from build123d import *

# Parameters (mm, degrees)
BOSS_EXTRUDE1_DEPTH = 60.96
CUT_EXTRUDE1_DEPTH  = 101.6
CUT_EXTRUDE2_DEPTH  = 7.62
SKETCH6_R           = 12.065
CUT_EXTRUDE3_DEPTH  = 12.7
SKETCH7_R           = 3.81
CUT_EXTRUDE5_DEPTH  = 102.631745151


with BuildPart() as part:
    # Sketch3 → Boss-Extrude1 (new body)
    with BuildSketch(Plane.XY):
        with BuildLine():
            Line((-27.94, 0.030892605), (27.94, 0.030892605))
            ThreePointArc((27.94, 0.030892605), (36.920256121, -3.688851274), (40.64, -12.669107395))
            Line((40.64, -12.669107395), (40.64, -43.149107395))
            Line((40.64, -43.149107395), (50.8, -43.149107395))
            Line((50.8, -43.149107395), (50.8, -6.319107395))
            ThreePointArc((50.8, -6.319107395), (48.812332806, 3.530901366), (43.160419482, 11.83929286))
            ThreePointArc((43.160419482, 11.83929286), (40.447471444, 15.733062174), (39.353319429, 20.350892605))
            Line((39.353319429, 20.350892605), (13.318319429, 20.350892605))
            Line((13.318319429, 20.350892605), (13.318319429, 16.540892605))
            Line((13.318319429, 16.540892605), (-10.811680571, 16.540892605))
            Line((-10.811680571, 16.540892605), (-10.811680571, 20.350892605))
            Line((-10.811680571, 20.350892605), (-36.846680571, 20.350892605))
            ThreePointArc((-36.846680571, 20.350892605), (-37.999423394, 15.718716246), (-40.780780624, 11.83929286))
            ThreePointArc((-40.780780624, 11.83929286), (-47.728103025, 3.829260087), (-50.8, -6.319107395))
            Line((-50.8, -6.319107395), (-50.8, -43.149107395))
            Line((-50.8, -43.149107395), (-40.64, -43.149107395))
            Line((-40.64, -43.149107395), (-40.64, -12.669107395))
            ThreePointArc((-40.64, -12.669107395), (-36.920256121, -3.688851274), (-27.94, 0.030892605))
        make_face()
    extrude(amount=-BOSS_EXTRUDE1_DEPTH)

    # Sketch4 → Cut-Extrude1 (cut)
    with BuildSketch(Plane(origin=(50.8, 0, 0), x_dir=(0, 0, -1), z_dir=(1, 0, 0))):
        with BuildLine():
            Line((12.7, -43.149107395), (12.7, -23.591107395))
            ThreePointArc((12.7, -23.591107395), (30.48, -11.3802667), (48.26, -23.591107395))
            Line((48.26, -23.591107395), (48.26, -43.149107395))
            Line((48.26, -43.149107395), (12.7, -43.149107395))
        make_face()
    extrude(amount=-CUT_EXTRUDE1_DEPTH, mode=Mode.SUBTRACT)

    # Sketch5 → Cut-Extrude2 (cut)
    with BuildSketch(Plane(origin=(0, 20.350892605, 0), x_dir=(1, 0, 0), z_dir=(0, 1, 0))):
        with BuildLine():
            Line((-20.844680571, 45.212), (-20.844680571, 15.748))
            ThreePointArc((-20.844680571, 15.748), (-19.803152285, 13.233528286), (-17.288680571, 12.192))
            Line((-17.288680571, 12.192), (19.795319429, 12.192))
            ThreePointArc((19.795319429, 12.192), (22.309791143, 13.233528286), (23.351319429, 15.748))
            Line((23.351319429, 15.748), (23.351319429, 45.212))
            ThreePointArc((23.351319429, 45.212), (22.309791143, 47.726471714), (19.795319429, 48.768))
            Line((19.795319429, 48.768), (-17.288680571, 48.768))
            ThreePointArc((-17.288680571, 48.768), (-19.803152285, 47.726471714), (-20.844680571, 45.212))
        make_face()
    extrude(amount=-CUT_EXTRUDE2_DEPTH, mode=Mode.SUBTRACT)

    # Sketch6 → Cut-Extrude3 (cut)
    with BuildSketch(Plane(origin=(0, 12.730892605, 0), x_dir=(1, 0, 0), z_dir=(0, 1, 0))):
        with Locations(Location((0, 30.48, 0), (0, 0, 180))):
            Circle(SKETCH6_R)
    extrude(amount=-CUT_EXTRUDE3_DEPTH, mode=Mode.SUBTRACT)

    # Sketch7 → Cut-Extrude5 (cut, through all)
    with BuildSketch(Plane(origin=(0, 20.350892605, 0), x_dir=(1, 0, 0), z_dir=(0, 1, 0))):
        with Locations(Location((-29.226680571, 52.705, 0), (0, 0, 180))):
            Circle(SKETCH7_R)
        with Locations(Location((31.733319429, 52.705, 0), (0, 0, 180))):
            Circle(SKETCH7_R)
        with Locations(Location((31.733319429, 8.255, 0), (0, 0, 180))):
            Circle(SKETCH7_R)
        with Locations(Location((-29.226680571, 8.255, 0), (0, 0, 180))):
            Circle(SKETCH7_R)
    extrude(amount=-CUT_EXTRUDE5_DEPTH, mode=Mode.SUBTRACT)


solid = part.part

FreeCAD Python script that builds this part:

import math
import FreeCAD as App
import Part
import Sketcher
from FreeCAD import Vector
Q = App.Units.Quantity

doc = App.newDocument("Part")
body = doc.addObject("PartDesign::Body", "Body")

sketch1 = doc.addObject("Sketcher::SketchObject", "Sketch")
body.addObject(sketch1)
sketch1.AttachmentSupport = (doc.XY_Plane, [""])
sketch1.MapMode = "FlatFace"
sketch1.addGeometry([
    Part.LineSegment(Vector(-27.94, 0.030893, 0), Vector(27.94, 0.030893, 0)),
    Part.ArcOfCircle(Part.Circle(Vector(27.94, -12.669107, 0), Vector(0, 0, 1), 12.7), math.radians(0), math.radians(90)),
    Part.LineSegment(Vector(40.64, -12.669107, 0), Vector(40.64, -43.149107, 0)),
    Part.LineSegment(Vector(40.64, -43.149107, 0), Vector(50.8, -43.149107, 0)),
    Part.LineSegment(Vector(50.8, -43.149107, 0), Vector(50.8, -6.319107, 0)),
    Part.ArcOfCircle(Part.Circle(Vector(25.4, -6.319107, 0), Vector(0, 0, 1), 25.4), math.radians(0), math.radians(45.634812)),
    Part.ArcOfCircle(Part.Circle(Vector(52.040629, 20.918493, 0), Vector(0, 0, 1), 12.7), math.radians(-177.43843), math.radians(-134.365188)),
    Part.LineSegment(Vector(39.353319, 20.350893, 0), Vector(13.318319, 20.350893, 0)),
    Part.LineSegment(Vector(13.318319, 20.350893, 0), Vector(13.318319, 16.540893, 0)),
    Part.LineSegment(Vector(13.318319, 16.540893, 0), Vector(-10.811681, 16.540893, 0)),
    Part.LineSegment(Vector(-10.811681, 16.540893, 0), Vector(-10.811681, 20.350893, 0)),
    Part.LineSegment(Vector(-10.811681, 20.350893, 0), Vector(-36.846681, 20.350893, 0)),
    Part.ArcOfCircle(Part.Circle(Vector(-49.527584, 21.047085, 0), Vector(0, 0, 1), 12.7), math.radians(-46.470758), math.radians(-3.14243)),
    Part.ArcOfCircle(Part.Circle(Vector(-25.48884, -8.441648, 0), Vector(0, 0, 1), 25.4), math.radians(127.016494), math.radians(175.206512)),
    Part.LineSegment(Vector(-50.8, -6.319107, 0), Vector(-50.8, -43.149107, 0)),
    Part.LineSegment(Vector(-50.8, -43.149107, 0), Vector(-40.64, -43.149107, 0)),
    Part.LineSegment(Vector(-40.64, -43.149107, 0), Vector(-40.64, -12.669107, 0)),
    Part.ArcOfCircle(Part.Circle(Vector(-27.94, -12.669107, 0), Vector(0, 0, 1), 12.7), math.radians(90), math.radians(180)),
], False)
sketch1.addConstraint([
    Sketcher.Constraint("Tangent", 0, 2, 1, 2),
    Sketcher.Constraint("Tangent", 1, 1, 2, 1),
    Sketcher.Constraint("Coincident", 2, 2, 3, 1),
    Sketcher.Constraint("Coincident", 3, 2, 4, 1),
    Sketcher.Constraint("Tangent", 4, 2, 5, 1),
    Sketcher.Constraint("Tangent", 5, 2, 6, 2),
    Sketcher.Constraint("Coincident", 6, 1, 7, 1),
    Sketcher.Constraint("Coincident", 7, 2, 8, 1),
    Sketcher.Constraint("Coincident", 8, 2, 9, 1),
    Sketcher.Constraint("Coincident", 9, 2, 10, 1),
    Sketcher.Constraint("Coincident", 10, 2, 11, 1),
    Sketcher.Constraint("Coincident", 11, 2, 12, 2),
    Sketcher.Constraint("Coincident", 12, 1, 13, 1),
    Sketcher.Constraint("Coincident", 13, 2, 14, 1),
    Sketcher.Constraint("Coincident", 14, 2, 15, 1),
    Sketcher.Constraint("Coincident", 15, 2, 16, 1),
    Sketcher.Constraint("Tangent", 16, 2, 17, 2),
    Sketcher.Constraint("Tangent", 17, 1, 0, 1),
    Sketcher.Constraint("Horizontal", 0),
    Sketcher.Constraint("Vertical", 2),
    Sketcher.Constraint("Horizontal", 3),
    Sketcher.Constraint("Vertical", 4),
    Sketcher.Constraint("Horizontal", 7),
    Sketcher.Constraint("Vertical", 8),
    Sketcher.Constraint("Horizontal", 9),
    Sketcher.Constraint("Vertical", 10),
    Sketcher.Constraint("Horizontal", 11),
    Sketcher.Constraint("Vertical", 14),
    Sketcher.Constraint("Horizontal", 15),
    Sketcher.Constraint("Vertical", 16),
    Sketcher.Constraint("Equal", 1, 6),
    Sketcher.Constraint("Equal", 6, 12),
    Sketcher.Constraint("Equal", 5, 13),
    Sketcher.Constraint("Equal", 12, 17),
    Sketcher.Constraint("Symmetric", 4, 2, 13, 2, -2),
    Sketcher.Constraint("Symmetric", 2, 2, 15, 2, -2),
    Sketcher.Constraint("Horizontal", 7, 2, 10, 2),
    Sketcher.Constraint("Horizontal", 5, 2, 12, 1),
    Sketcher.Constraint("Equal", 7, 11),
    Sketcher.Constraint("Radius", 5, Q("1 in")),
    Sketcher.Constraint("Radius", 1, Q("0.5 in")),
    Sketcher.Constraint("DistanceX", 0, 1, 0, 2, Q("2.2 in")),
    Sketcher.Constraint("DistanceX", 3, 1, 3, 2, Q("0.4 in")),
    Sketcher.Constraint("DistanceY", 2, 2, 2, 1, Q("1.2 in")),
    Sketcher.Constraint("DistanceX", 9, 2, 9, 1, Q("0.95 in")),
    Sketcher.Constraint("DistanceY", 4, 1, 4, 2, Q("1.45 in")),
    Sketcher.Constraint("DistanceY", 8, 2, 8, 1, Q("0.15 in")),
    Sketcher.Constraint("DistanceY", 0, 2, 6, 1, Q("0.8 in")),
    Sketcher.Constraint("DistanceX", 7, 2, 7, 1, Q("1.025 in")),
    Sketcher.Constraint("DistanceY", 5, 3, 6, 3, Q("27.2376 mm")),
    Sketcher.Constraint("DistanceX", 12, 1, 11, 2, Q("3.9341 mm")),
    Sketcher.Constraint("DistanceY", 1, 3, -1, 1, Q("12.669107 mm")),
])
pad1 = doc.addObject("PartDesign::Pad", "Pad")
body.addObject(pad1)
pad1.Profile = sketch1
pad1.Length = Q("2.4 in")
pad1.Reversed = True

sketch2 = doc.addObject("Sketcher::SketchObject", "Sketch001")
body.addObject(sketch2)
sketch2.AttachmentSupport = (doc.YZ_Plane, [""])
sketch2.MapMode = "FlatFace"
sketch2.AttachmentOffset = App.Placement(Vector(0, 0, 2 * 25.4), App.Rotation())
sketch2.addGeometry([
    Part.LineSegment(Vector(-23.591107, -12.7, 0), Vector(-43.149107, -12.7, 0)),
    Part.LineSegment(Vector(-43.149107, -12.7, 0), Vector(-43.149107, -48.26, 0)),
    Part.LineSegment(Vector(-43.149107, -48.26, 0), Vector(-23.591107, -48.26, 0)),
    Part.ArcOfCircle(Part.Circle(Vector(-30.430267, -30.48, 0), Vector(0, 0, 1), 19.05), math.radians(-68.96053), math.radians(68.96053)),
], False)
sketch2.addConstraint([
    Sketcher.Constraint("Coincident", 0, 2, 1, 1),
    Sketcher.Constraint("Coincident", 1, 2, 2, 1),
    Sketcher.Constraint("Coincident", 2, 2, 3, 1),
    Sketcher.Constraint("Coincident", 3, 2, 0, 1),
    Sketcher.Constraint("Horizontal", 0),
    Sketcher.Constraint("Vertical", 1),
    Sketcher.Constraint("Horizontal", 2),
    Sketcher.Constraint("Vertical", 2, 2, 3, 2),
    Sketcher.Constraint("Radius", 3, Q("0.75 in")),
    Sketcher.Constraint("DistanceY", 1, 2, 1, 1, Q("1.4 in")),
    Sketcher.Constraint("DistanceX", 0, 2, 0, 1, Q("0.77 in")),
    Sketcher.Constraint("DistanceY", 3, 3, -1, 1, Q("1.2 in")),
    Sketcher.Constraint("DistanceX", 3, 3, -1, 1, Q("30.430267 mm")),
])
pocket1 = doc.addObject("PartDesign::Pocket", "Pocket")
body.addObject(pocket1)
pocket1.Profile = sketch2
pocket1.Length = Q("4 in")

sketch3 = doc.addObject("Sketcher::SketchObject", "Sketch002")
body.addObject(sketch3)
sketch3.AttachmentSupport = (doc.XZ_Plane, [""])
sketch3.MapMode = "FlatFace"
sketch3.AttachmentOffset = App.Placement(Vector(0, 0, -20.350893), App.Rotation())
sketch3.addGeometry([
    Part.LineSegment(Vector(-20.844681, -45.212, 0), Vector(-20.844681, -15.748, 0)),
    Part.ArcOfCircle(Part.Circle(Vector(-17.288681, -15.748, 0), Vector(0, 0, 1), 3.556), math.radians(90), math.radians(180)),
    Part.LineSegment(Vector(-17.288681, -12.192, 0), Vector(19.795319, -12.192, 0)),
    Part.ArcOfCircle(Part.Circle(Vector(19.795319, -15.748, 0), Vector(0, 0, 1), 3.556), math.radians(0), math.radians(90)),
    Part.LineSegment(Vector(23.351319, -15.748, 0), Vector(23.351319, -45.212, 0)),
    Part.ArcOfCircle(Part.Circle(Vector(19.795319, -45.212, 0), Vector(0, 0, 1), 3.556), math.radians(-90), math.radians(0)),
    Part.LineSegment(Vector(19.795319, -48.768, 0), Vector(-17.288681, -48.768, 0)),
    Part.ArcOfCircle(Part.Circle(Vector(-17.288681, -45.212, 0), Vector(0, 0, 1), 3.556), math.radians(180), math.radians(270)),
], False)
sketch3.addConstraint([
    Sketcher.Constraint("Tangent", 0, 2, 1, 2),
    Sketcher.Constraint("Tangent", 1, 1, 2, 1),
    Sketcher.Constraint("Tangent", 2, 2, 3, 2),
    Sketcher.Constraint("Tangent", 3, 1, 4, 1),
    Sketcher.Constraint("Tangent", 4, 2, 5, 2),
    Sketcher.Constraint("Tangent", 5, 1, 6, 1),
    Sketcher.Constraint("Tangent", 6, 2, 7, 2),
    Sketcher.Constraint("Tangent", 7, 1, 0, 1),
    Sketcher.Constraint("Vertical", 0),
    Sketcher.Constraint("Horizontal", 2),
    Sketcher.Constraint("Vertical", 4),
    Sketcher.Constraint("Horizontal", 6),
    Sketcher.Constraint("Equal", 1, 3),
    Sketcher.Constraint("Equal", 3, 5),
    Sketcher.Constraint("Equal", 5, 7),
    Sketcher.Constraint("Radius", 1, Q("0.14 in")),
    Sketcher.Constraint("DistanceX", 2, 1, 2, 2, Q("1.46 in")),
    Sketcher.Constraint("DistanceY", 0, 1, 0, 2, Q("1.16 in")),
    Sketcher.Constraint("DistanceY", 1, 3, -1, 1, Q("0.62 in")),
    Sketcher.Constraint("DistanceX", 1, 3, -1, 1, Q("17.288681 mm")),
])
pocket2 = doc.addObject("PartDesign::Pocket", "Pocket001")
body.addObject(pocket2)
pocket2.Profile = sketch3
pocket2.Length = Q("0.3 in")
pocket2.Reversed = True

sketch4 = doc.addObject("Sketcher::SketchObject", "Sketch003")
body.addObject(sketch4)
sketch4.AttachmentSupport = (doc.XZ_Plane, [""])
sketch4.MapMode = "FlatFace"
sketch4.AttachmentOffset = App.Placement(Vector(0, 0, -12.730893), App.Rotation())
sketch4.addGeometry(Part.Circle(Vector(0, -30.48, 0), Vector(0, 0, 1), 12.065), False)
sketch4.addConstraint([
    Sketcher.Constraint("PointOnObject", 0, 3, -2),
    Sketcher.Constraint("Diameter", 0, Q("0.95 in")),
    Sketcher.Constraint("DistanceY", 0, 3, -1, 1, Q("1.2 in")),
])
pocket3 = doc.addObject("PartDesign::Pocket", "Pocket002")
body.addObject(pocket3)
pocket3.Profile = sketch4
pocket3.Length = Q("0.5 in")
pocket3.Reversed = True

sketch5 = doc.addObject("Sketcher::SketchObject", "Sketch004")
body.addObject(sketch5)
sketch5.AttachmentSupport = (doc.XZ_Plane, [""])
sketch5.MapMode = "FlatFace"
sketch5.AttachmentOffset = App.Placement(Vector(0, 0, -20.350893), App.Rotation())
sketch5.addGeometry([
    Part.Circle(Vector(-29.226681, -52.705, 0), Vector(0, 0, 1), 3.81),
    Part.Circle(Vector(31.733319, -52.705, 0), Vector(0, 0, 1), 3.81),
    Part.Circle(Vector(31.733319, -8.255, 0), Vector(0, 0, 1), 3.81),
    Part.Circle(Vector(-29.226681, -8.255, 0), Vector(0, 0, 1), 3.81),
], False)
sketch5.addConstraint([
    Sketcher.Constraint("Equal", 0, 1),
    Sketcher.Constraint("Equal", 1, 2),
    Sketcher.Constraint("Equal", 2, 3),
    Sketcher.Constraint("Horizontal", 0, 3, 1, 3),
    Sketcher.Constraint("Horizontal", 2, 3, 3, 3),
    Sketcher.Constraint("Vertical", 1, 3, 2, 3),
    Sketcher.Constraint("Vertical", 0, 3, 3, 3),
    Sketcher.Constraint("Diameter", 0, Q("0.3 in")),
    Sketcher.Constraint("DistanceX", 0, 3, 1, 3, Q("2.4 in")),
    Sketcher.Constraint("DistanceY", 1, 3, 2, 3, Q("1.75 in")),
    Sketcher.Constraint("DistanceY", 0, 3, -1, 1, Q("2.075 in")),
    Sketcher.Constraint("DistanceX", 0, 3, -1, 1, Q("29.226681 mm")),
])
pocket4 = doc.addObject("PartDesign::Pocket", "Pocket003")
body.addObject(pocket4)
pocket4.Profile = sketch5
pocket4.Type = "ThroughAll"
pocket4.Reversed = True

doc.recompute()
